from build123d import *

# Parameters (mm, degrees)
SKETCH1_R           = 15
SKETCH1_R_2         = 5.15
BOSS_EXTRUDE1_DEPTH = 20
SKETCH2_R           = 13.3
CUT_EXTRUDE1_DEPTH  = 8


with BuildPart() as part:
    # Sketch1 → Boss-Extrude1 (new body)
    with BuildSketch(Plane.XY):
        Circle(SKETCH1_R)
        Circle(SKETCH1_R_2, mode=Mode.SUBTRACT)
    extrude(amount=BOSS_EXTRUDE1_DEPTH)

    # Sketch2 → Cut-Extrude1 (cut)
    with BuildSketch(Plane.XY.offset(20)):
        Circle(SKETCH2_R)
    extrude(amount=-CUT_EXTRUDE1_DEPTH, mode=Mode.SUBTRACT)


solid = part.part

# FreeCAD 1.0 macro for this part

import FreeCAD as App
import Part
import Sketcher
from FreeCAD import Vector

doc = App.newDocument("Part")
body = doc.addObject("PartDesign::Body", "Body")

sketch1 = body.newObject("Sketcher::SketchObject", "Sketch")
sketch1.AttachmentSupport = (doc.getObject("XY_Plane"), [""])
sketch1.MapMode = "FlatFace"
sketch1.addGeometry([
    Part.Circle(Vector(0, 0, 0), Vector(0, 0, 1), 15),
    Part.Circle(Vector(0, 0, 0), Vector(0, 0, 1), 5),
], False)
sketch1.addConstraint([
    Sketcher.Constraint("Coincident", 0, 3, -1, 1),
    Sketcher.Constraint("Coincident", 1, 3, -1, 1),
    Sketcher.Constraint("Diameter", 0, 30.0),
    Sketcher.Constraint("Diameter", 1, 10.3),
])
pad1 = body.newObject("PartDesign::Pad", "Pad")
pad1.Profile = sketch1
pad1.Length = 20

sketch2 = body.newObject("Sketcher::SketchObject", "Sketch001")
sketch2.AttachmentSupport = (doc.getObject("XY_Plane"), [""])
sketch2.MapMode = "FlatFace"
sketch2.AttachmentOffset = App.Placement(Vector(0, 0, 20), App.Rotation())
sketch2.addGeometry(Part.Circle(Vector(0, 0, 0), Vector(0, 0, 1), 13), False)
sketch2.addConstraint([
    Sketcher.Constraint("Coincident", 0, 3, -1, 1),
    Sketcher.Constraint("Diameter", 0, 26.6),
])
pocket1 = body.newObject("PartDesign::Pocket", "Pocket")
pocket1.Profile = sketch2
pocket1.Length = 8

doc.recompute()
